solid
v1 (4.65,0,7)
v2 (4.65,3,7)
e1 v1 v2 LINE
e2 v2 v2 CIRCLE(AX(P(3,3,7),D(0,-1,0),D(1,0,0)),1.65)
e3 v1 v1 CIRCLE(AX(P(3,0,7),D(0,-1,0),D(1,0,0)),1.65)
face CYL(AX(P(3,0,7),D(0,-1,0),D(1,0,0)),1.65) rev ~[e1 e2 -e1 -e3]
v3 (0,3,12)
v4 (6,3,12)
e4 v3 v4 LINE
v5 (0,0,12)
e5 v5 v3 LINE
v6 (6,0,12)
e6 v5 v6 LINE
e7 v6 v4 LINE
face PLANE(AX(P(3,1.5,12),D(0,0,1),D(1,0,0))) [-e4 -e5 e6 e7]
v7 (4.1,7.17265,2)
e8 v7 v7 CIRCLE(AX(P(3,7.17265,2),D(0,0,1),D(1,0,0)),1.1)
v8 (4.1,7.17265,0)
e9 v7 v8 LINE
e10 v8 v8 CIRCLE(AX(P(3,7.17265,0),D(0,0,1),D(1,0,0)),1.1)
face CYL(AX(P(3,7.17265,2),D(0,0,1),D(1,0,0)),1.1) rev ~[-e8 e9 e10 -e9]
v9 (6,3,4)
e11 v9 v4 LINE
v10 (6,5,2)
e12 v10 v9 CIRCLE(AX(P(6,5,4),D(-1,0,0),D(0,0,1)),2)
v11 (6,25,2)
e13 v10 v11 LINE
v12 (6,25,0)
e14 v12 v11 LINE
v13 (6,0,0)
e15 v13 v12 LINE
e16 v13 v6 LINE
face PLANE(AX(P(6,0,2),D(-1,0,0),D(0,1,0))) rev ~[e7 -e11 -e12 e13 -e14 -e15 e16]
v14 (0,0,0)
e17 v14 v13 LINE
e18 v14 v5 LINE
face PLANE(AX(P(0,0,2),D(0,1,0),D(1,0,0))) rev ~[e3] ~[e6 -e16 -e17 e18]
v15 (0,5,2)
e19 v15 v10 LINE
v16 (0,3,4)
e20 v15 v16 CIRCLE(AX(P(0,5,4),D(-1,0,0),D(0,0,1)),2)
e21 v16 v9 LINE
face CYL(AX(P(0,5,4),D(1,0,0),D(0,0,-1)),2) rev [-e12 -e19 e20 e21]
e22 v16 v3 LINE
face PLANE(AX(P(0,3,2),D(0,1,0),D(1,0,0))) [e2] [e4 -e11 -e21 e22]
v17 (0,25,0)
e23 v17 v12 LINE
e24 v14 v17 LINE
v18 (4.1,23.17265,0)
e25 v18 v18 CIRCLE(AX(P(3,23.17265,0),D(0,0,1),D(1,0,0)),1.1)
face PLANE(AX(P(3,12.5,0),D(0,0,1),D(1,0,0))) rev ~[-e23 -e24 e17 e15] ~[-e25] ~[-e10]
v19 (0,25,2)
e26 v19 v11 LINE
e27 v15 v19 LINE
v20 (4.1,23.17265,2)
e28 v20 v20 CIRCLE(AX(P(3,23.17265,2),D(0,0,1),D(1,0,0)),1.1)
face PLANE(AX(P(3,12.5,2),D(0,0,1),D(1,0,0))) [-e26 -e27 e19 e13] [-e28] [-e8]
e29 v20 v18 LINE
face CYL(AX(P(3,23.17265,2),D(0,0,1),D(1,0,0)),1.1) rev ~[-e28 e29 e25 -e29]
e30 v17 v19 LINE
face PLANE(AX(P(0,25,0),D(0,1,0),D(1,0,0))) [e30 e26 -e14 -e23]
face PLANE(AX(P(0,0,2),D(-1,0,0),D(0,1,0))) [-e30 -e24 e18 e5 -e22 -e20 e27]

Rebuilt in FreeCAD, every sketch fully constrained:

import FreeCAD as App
import Part
import Sketcher
from FreeCAD import Vector
Q = App.Units.Quantity


def edges_at(feature, points):
    """Names of the edges that pass closest to the given points."""
    edges = feature.Shape.Edges
    near = lambda p: min(range(len(edges)), key=lambda i: edges[i].distToShape(Part.Vertex(*p))[0])
    return sorted({f"Edge{near(p) + 1}" for p in points})


def add_polygon(sketch, points):
    """Adds a closed chain of lines whose ends are joined by coincident constraints."""
    first, n = sketch.GeometryCount, len(points)
    for a, b in zip(points, points[1:] + points[:1]):
        sketch.addGeometry(Part.LineSegment(App.Vector(*a, 0), App.Vector(*b, 0)), False)
    for i in range(n):
        sketch.addConstraint(Sketcher.Constraint("Coincident", first + i, 2, first + (i + 1) % n, 1))

doc = App.newDocument("Part")
body = doc.addObject("PartDesign::Body", "Body")

# Sketch on XY plane
sketch1 = body.newObject("Sketcher::SketchObject", "Sketch")
sketch1.AttachmentSupport = (doc.getObject("XY_Plane"), [""])
sketch1.MapMode = "FlatFace"
add_polygon(sketch1, [(0, 25), (0, 0), (6, 0), (6, 25)])  # lines 0-3
sketch1.addConstraint(Sketcher.Constraint("Vertical", 0))
sketch1.addConstraint(Sketcher.Constraint("Horizontal", 1))
sketch1.addConstraint(Sketcher.Constraint("Vertical", 2))
sketch1.addConstraint(Sketcher.Constraint("Horizontal", 3))
sketch1.addConstraint(Sketcher.Constraint("Coincident", 0, 2, -1, 1))
sketch1.addConstraint(Sketcher.Constraint("DistanceX", 1, 1, 1, 2, Q("6 mm")))
sketch1.addConstraint(Sketcher.Constraint("DistanceY", 0, 2, 0, 1, Q("25 mm")))
pad1 = body.newObject("PartDesign::Pad", "Pad")
pad1.Profile = sketch1
pad1.Length = 2

# Sketch on XY plane
sketch2 = body.newObject("Sketcher::SketchObject", "Sketch001")
sketch2.AttachmentSupport = (doc.getObject("XY_Plane"), [""])
sketch2.MapMode = "FlatFace"
sketch2.AttachmentOffset = App.Placement(Vector(0, 0, 2), App.Rotation())
add_polygon(sketch2, [(0, 3), (0, 0), (6, 0), (6, 3)])  # lines 0-3
sketch2.addConstraint(Sketcher.Constraint("Vertical", 0))
sketch2.addConstraint(Sketcher.Constraint("Horizontal", 1))
sketch2.addConstraint(Sketcher.Constraint("Vertical", 2))
sketch2.addConstraint(Sketcher.Constraint("Horizontal", 3))
sketch2.addConstraint(Sketcher.Constraint("Coincident", 0, 2, -1, 1))
sketch2.addConstraint(Sketcher.Constraint("DistanceX", 1, 1, 1, 2, Q("6 mm")))
sketch2.addConstraint(Sketcher.Constraint("DistanceY", 0, 2, 0, 1, Q("3 mm")))
pad2 = body.newObject("PartDesign::Pad", "Pad001")
pad2.Profile = sketch2
pad2.Length = 10
doc.recompute()

fillet = body.newObject("PartDesign::Fillet", "Fillet")
fillet.Base = (pad2, edges_at(pad2, [(3, 3, 2)]))
fillet.Radius = 2

# Sketch on XY plane
sketch3 = body.newObject("Sketcher::SketchObject", "Sketch002")
sketch3.AttachmentSupport = (doc.getObject("XY_Plane"), [""])
sketch3.MapMode = "FlatFace"
sketch3.AttachmentOffset = App.Placement(Vector(0, 0, 2), App.Rotation())
sketch3.addGeometry(Part.Circle(Vector(3, 23.2, 0), Vector(0, 0, 1), 1.1), False)
sketch3.addGeometry(Part.Circle(Vector(3, 7.2, 0), Vector(0, 0, 1), 1.1), False)
sketch3.addConstraint(Sketcher.Constraint("Equal", 0, 1))
sketch3.addConstraint(Sketcher.Constraint("Vertical", 0, 3, 1, 3))
sketch3.addConstraint(Sketcher.Constraint("Diameter", 0, Q("2.2 mm")))
sketch3.addConstraint(Sketcher.Constraint("DistanceX", -1, 1, 0, 3, Q("3 mm")))
sketch3.addConstraint(Sketcher.Constraint("DistanceY", 1, 3, 0, 3, Q("16 mm")))
sketch3.addConstraint(Sketcher.Constraint("DistanceY", -1, 1, 0, 3, Q("23.17265 mm")))
pocket1 = body.newObject("PartDesign::Pocket", "Pocket")
pocket1.Profile = sketch3
pocket1.Length = 5

# Sketch on XZ plane
sketch4 = body.newObject("Sketcher::SketchObject", "Sketch003")
sketch4.AttachmentSupport = (doc.getObject("XZ_Plane"), [""])
sketch4.MapMode = "FlatFace"
sketch4.addGeometry(Part.Circle(Vector(3, 7, 0), Vector(0, 0, 1), 1.6), False)
sketch4.addConstraint(Sketcher.Constraint("Diameter", 0, Q("3.3 mm")))
sketch4.addConstraint(Sketcher.Constraint("DistanceX", -1, 1, 0, 3, Q("3 mm")))
sketch4.addConstraint(Sketcher.Constraint("DistanceY", -1, 1, 0, 3, Q("7 mm")))
pocket2 = body.newObject("PartDesign::Pocket", "Pocket001")
pocket2.Profile = sketch4
pocket2.Length = 5

doc.recompute()
